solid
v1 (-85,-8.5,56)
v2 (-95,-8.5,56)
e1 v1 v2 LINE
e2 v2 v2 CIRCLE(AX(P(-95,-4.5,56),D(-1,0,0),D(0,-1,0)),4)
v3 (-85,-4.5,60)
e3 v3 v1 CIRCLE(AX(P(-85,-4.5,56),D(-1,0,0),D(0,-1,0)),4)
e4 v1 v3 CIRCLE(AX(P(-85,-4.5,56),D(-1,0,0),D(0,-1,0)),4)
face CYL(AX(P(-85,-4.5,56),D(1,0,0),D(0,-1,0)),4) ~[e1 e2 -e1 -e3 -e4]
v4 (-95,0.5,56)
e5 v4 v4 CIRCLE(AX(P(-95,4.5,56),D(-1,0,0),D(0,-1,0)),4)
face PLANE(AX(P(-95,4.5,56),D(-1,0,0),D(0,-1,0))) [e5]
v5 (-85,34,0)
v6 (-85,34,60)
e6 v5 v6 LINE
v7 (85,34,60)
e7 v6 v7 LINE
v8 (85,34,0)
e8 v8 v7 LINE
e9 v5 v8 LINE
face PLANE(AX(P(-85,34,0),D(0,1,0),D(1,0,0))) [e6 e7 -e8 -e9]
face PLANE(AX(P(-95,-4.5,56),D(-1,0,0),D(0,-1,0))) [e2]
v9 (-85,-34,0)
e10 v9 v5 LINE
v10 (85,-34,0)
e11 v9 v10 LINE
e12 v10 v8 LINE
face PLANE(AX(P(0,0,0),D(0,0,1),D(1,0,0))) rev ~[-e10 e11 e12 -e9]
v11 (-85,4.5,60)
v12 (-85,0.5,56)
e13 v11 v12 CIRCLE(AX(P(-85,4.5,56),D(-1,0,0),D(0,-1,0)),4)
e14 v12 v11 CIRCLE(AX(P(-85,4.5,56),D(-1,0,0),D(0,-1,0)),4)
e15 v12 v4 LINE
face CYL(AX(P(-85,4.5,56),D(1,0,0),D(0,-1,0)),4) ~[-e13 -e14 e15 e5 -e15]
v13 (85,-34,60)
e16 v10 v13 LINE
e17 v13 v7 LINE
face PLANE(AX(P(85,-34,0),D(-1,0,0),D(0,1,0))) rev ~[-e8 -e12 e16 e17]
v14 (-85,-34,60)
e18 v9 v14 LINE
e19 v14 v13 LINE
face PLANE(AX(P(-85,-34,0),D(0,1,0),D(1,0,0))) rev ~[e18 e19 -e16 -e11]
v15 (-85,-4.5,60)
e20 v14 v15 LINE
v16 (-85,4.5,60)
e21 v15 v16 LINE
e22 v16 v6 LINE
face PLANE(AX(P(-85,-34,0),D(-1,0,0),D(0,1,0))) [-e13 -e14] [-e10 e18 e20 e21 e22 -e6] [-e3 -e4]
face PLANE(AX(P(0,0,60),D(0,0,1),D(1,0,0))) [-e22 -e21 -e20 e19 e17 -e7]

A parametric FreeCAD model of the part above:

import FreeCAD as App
import Part
import Sketcher
from FreeCAD import Vector

doc = App.newDocument("Part")
params = doc.addObject("Spreadsheet::Sheet", "Params")
for row, (alias, value) in enumerate([
    ("sketch1_width", "170 mm"),
    ("sketch1_height", "68 mm"),
    ("pad1_length", "60 mm"),
    ("sketch2_diameter", "8 mm"),
    ("pad2_length", "10 mm"),
], start=1):
    params.set(f"A{row}", alias)
    params.set(f"B{row}", "=" + value)
    params.setAlias(f"B{row}", alias)

body = doc.addObject("PartDesign::Body", "Body")

sketch1 = doc.addObject("Sketcher::SketchObject", "Sketch")
body.addObject(sketch1)
sketch1.AttachmentSupport = (doc.XY_Plane, [""])
sketch1.MapMode = "FlatFace"
sketch1.addGeometry([
    Part.LineSegment(Vector(-85, 34, 0), Vector(-85, -34, 0)),
    Part.LineSegment(Vector(-85, -34, 0), Vector(85, -34, 0)),
    Part.LineSegment(Vector(85, -34, 0), Vector(85, 34, 0)),
    Part.LineSegment(Vector(85, 34, 0), Vector(-85, 34, 0)),
], False)
sketch1.addConstraint([
    Sketcher.Constraint("Coincident", 0, 2, 1, 1),
    Sketcher.Constraint("Coincident", 1, 2, 2, 1),
    Sketcher.Constraint("Coincident", 2, 2, 3, 1),
    Sketcher.Constraint("Coincident", 3, 2, 0, 1),
    Sketcher.Constraint("Vertical", 0),
    Sketcher.Constraint("Horizontal", 1),
    Sketcher.Constraint("Vertical", 2),
    Sketcher.Constraint("Horizontal", 3),
    Sketcher.Constraint("Symmetric", 0, 2, 2, 2, -1, 1),
    Sketcher.Constraint("DistanceX", 1, 1, 1, 2, 170.0),
    Sketcher.Constraint("DistanceY", 0, 2, 0, 1, 68.0),
])
sketch1.setExpression("Constraints[9]", "Params.sketch1_width")
sketch1.setExpression("Constraints[10]", "Params.sketch1_height")
pad1 = doc.addObject("PartDesign::Pad", "Pad")
body.addObject(pad1)
pad1.Profile = sketch1
pad1.setExpression("Length", "Params.pad1_length")

sketch2 = doc.addObject("Sketcher::SketchObject", "Sketch001")
body.addObject(sketch2)
sketch2.AttachmentSupport = (doc.YZ_Plane, [""])
sketch2.MapMode = "FlatFace"
sketch2.AttachmentOffset = App.Placement(Vector(0, 0, -85), App.Rotation())
sketch2.addGeometry([
    Part.Circle(Vector(-4.5, 56, 0), Vector(0, 0, 1), 4),
    Part.Circle(Vector(4.5, 56, 0), Vector(0, 0, 1), 4),
], False)
sketch2.addConstraint([
    Sketcher.Constraint("Equal", 0, 1),
    Sketcher.Constraint("Symmetric", 0, 3, 1, 3, -2),
    Sketcher.Constraint("Diameter", 0, 8.0),
    Sketcher.Constraint("DistanceY", -1, 1, 0, 3, 56.0),
    Sketcher.Constraint("DistanceX", 0, 3, 1, 3, 9.0),
])
sketch2.setExpression("Constraints[2]", "Params.sketch2_diameter")
pad2 = doc.addObject("PartDesign::Pad", "Pad001")
body.addObject(pad2)
pad2.Profile = sketch2
pad2.setExpression("Length", "Params.pad2_length")
pad2.Reversed = True

doc.recompute()
